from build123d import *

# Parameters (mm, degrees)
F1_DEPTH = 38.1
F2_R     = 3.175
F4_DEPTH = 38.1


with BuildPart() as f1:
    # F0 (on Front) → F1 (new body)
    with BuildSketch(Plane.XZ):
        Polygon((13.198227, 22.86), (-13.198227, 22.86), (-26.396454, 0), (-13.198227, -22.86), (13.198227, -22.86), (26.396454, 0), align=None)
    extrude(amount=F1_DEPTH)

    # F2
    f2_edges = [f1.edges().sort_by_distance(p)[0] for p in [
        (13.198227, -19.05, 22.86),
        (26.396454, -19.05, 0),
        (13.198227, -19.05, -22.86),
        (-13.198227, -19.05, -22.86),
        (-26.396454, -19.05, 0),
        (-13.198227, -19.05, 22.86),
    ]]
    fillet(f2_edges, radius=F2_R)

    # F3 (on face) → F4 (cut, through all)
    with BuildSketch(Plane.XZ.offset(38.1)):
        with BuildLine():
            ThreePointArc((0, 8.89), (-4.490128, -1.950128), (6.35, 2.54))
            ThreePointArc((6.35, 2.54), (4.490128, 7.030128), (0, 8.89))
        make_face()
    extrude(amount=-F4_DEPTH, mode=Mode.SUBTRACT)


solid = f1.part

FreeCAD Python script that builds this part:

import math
import FreeCAD as App
import Part
import Sketcher

V = App.Vector
Q = App.Units.Quantity


def edges_at(feature, points):
    """Names of the edges that pass closest to the given points."""
    edges = feature.Shape.Edges
    near = lambda p: min(range(len(edges)), key=lambda i: edges[i].distToShape(Part.Vertex(*p))[0])
    return sorted({f"Edge{near(p) + 1}" for p in points})


def add_polygon(sketch, points):
    """Adds a closed chain of lines whose ends are joined by coincident constraints."""
    first, n = sketch.GeometryCount, len(points)
    for a, b in zip(points, points[1:] + points[:1]):
        sketch.addGeometry(Part.LineSegment(App.Vector(*a, 0), App.Vector(*b, 0)), False)
    for i in range(n):
        sketch.addConstraint(Sketcher.Constraint("Coincident", first + i, 2, first + (i + 1) % n, 1))

doc = App.newDocument("Part")
body = doc.addObject("PartDesign::Body", "Body")

sketch1 = body.newObject("Sketcher::SketchObject", "Sketch")
sketch1.AttachmentSupport = (doc.getObject("XZ_Plane"), [""])
sketch1.MapMode = "FlatFace"
add_polygon(sketch1, [(13, 23), (-13, 23), (-26, 0), (-13, -23), (13, -23), (26, 0)])
sketch1.addConstraint([
    Sketcher.Constraint("Horizontal", 0),
    Sketcher.Constraint("Horizontal", 3),
    Sketcher.Constraint("Symmetric", 0, 2, 3, 2, -1, 1),
    Sketcher.Constraint("Symmetric", 1, 2, 4, 2, -1, 1),
    Sketcher.Constraint("PointOnObject", 1, 2, -1),
    Sketcher.Constraint("Parallel", 2, 5),
    Sketcher.Constraint("Vertical", 0, 2, 2, 2),
    Sketcher.Constraint("Angle", 1, Q("-120 deg")),
    Sketcher.Constraint("DistanceY", -1, 1, 0, 2, Q("0.9 in")),
    Sketcher.Constraint("DistanceX", 0, 2, 0, 1, 26.396454),
])
pad1 = body.newObject("PartDesign::Pad", "Pad")
pad1.Profile = sketch1
pad1.Length = Q("1.5 in")
doc.recompute()

fillet = body.newObject("PartDesign::Fillet", "Fillet")
fillet.Base = (pad1, edges_at(pad1, [
    (13.198, -19.05, 22.86),
    (26.396, -19.05, 0),
    (13.198, -19.05, -22.86),
    (-13.198, -19.05, -22.86),
    (-26.396, -19.05, 0),
    (-13.198, -19.05, 22.86),
]))
fillet.Radius = Q("0.125 in")

sketch2 = body.newObject("Sketcher::SketchObject", "Sketch001")
sketch2.AttachmentSupport = (doc.getObject("XZ_Plane"), [""])
sketch2.MapMode = "FlatFace"
sketch2.AttachmentOffset = App.Placement(V(0, 0, 1.5 * 25.4), App.Rotation())
sketch2.addGeometry([
    Part.ArcOfCircle(Part.Circle(V(0, 3, 0), V(0, 0, 1), 6), math.radians(90), math.radians(360)),
    Part.ArcOfCircle(Part.Circle(V(0, 3, 0), V(0, 0, 1), 6), math.radians(0), math.radians(90)),
], False)
sketch2.addConstraint([
    Sketcher.Constraint("Tangent", 0, 1, 1, 2),
    Sketcher.Constraint("Coincident", 1, 1, 0, 2),
    Sketcher.Constraint("PointOnObject", 0, 3, -2),
    Sketcher.Constraint("PointOnObject", 0, 1, -2),
    Sketcher.Constraint("Horizontal", 0, 3, 1, 1),
    Sketcher.Constraint("Radius", 0, Q("0.25 in")),
    Sketcher.Constraint("DistanceY", -1, 1, 0, 3, Q("0.1 in")),
])
pocket1 = body.newObject("PartDesign::Pocket", "Pocket")
pocket1.Profile = sketch2
pocket1.Type = "ThroughAll"

doc.recompute()
